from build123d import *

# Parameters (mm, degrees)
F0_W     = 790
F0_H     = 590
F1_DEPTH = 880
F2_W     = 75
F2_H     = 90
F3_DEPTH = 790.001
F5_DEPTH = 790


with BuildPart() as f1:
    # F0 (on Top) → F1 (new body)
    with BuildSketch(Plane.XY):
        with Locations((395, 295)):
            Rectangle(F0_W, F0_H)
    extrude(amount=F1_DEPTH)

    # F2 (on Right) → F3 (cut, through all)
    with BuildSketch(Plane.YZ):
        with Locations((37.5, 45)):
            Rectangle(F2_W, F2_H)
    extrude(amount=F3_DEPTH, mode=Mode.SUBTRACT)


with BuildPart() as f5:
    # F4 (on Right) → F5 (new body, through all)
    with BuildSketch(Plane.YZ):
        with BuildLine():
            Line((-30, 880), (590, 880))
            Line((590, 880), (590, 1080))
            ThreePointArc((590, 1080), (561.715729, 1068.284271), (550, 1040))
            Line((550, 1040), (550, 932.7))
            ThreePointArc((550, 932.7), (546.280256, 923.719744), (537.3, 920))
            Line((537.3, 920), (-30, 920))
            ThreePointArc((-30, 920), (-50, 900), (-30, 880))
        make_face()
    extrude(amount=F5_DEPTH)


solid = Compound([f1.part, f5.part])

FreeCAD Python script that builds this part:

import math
import FreeCAD as App
import Part
import Sketcher
from FreeCAD import Vector
Q = App.Units.Quantity


def add_polygon(sketch, points):
    """Adds a closed chain of lines whose ends are joined by coincident constraints."""
    first, n = sketch.GeometryCount, len(points)
    for a, b in zip(points, points[1:] + points[:1]):
        sketch.addGeometry(Part.LineSegment(App.Vector(*a, 0), App.Vector(*b, 0)), False)
    for i in range(n):
        sketch.addConstraint(Sketcher.Constraint("Coincident", first + i, 2, first + (i + 1) % n, 1))

doc = App.newDocument("Part")
body = doc.addObject("PartDesign::Body", "Body")

# Sketch on XY plane
sketch1 = doc.addObject("Sketcher::SketchObject", "Sketch")
body.addObject(sketch1)
sketch1.AttachmentSupport = (doc.XY_Plane, [""])
sketch1.MapMode = "FlatFace"
add_polygon(sketch1, [(0, 590), (0, 0), (790, 0), (790, 590)])  # lines 0-3
sketch1.addConstraint(Sketcher.Constraint("Vertical", 0))
sketch1.addConstraint(Sketcher.Constraint("Horizontal", 1))
sketch1.addConstraint(Sketcher.Constraint("Vertical", 2))
sketch1.addConstraint(Sketcher.Constraint("Horizontal", 3))
sketch1.addConstraint(Sketcher.Constraint("Coincident", 0, 2, -1, 1))
sketch1.addConstraint(Sketcher.Constraint("DistanceX", 1, 1, 1, 2, Q("790 mm")))
sketch1.addConstraint(Sketcher.Constraint("DistanceY", 0, 2, 0, 1, Q("590 mm")))
pad1 = doc.addObject("PartDesign::Pad", "Pad")
body.addObject(pad1)
pad1.Profile = sketch1
pad1.Length = 880

# Sketch on YZ plane
sketch2 = doc.addObject("Sketcher::SketchObject", "Sketch001")
body.addObject(sketch2)
sketch2.AttachmentSupport = (doc.YZ_Plane, [""])
sketch2.MapMode = "FlatFace"
add_polygon(sketch2, [(0, 90), (0, 0), (75, 0), (75, 90)])  # lines 0-3
sketch2.addConstraint(Sketcher.Constraint("Vertical", 0))
sketch2.addConstraint(Sketcher.Constraint("Horizontal", 1))
sketch2.addConstraint(Sketcher.Constraint("Vertical", 2))
sketch2.addConstraint(Sketcher.Constraint("Horizontal", 3))
sketch2.addConstraint(Sketcher.Constraint("Coincident", 0, 2, -1, 1))
sketch2.addConstraint(Sketcher.Constraint("DistanceX", 1, 1, 1, 2, Q("75 mm")))
sketch2.addConstraint(Sketcher.Constraint("DistanceY", 0, 2, 0, 1, Q("90 mm")))
pocket1 = doc.addObject("PartDesign::Pocket", "Pocket")
body.addObject(pocket1)
pocket1.Profile = sketch2
pocket1.Type = "ThroughAll"
pocket1.Reversed = True
body2 = doc.addObject("PartDesign::Body", "Body001")

# Sketch on YZ plane
sketch3 = doc.addObject("Sketcher::SketchObject", "Sketch002")
body2.addObject(sketch3)
sketch3.AttachmentSupport = (doc.getObject("YZ_Plane001"), [""])
sketch3.MapMode = "FlatFace"
sketch3.addGeometry(Part.LineSegment(Vector(-30, 880, 0), Vector(590, 880, 0)), False)
sketch3.addGeometry(Part.LineSegment(Vector(590, 880, 0), Vector(590, 1080, 0)), False)
sketch3.addGeometry(Part.ArcOfCircle(Part.Circle(Vector(590, 1040, 0), Vector(0, 0, 1), 40), math.radians(90), math.radians(180)), False)
sketch3.addGeometry(Part.LineSegment(Vector(550, 1040, 0), Vector(550, 933, 0)), False)
sketch3.addGeometry(Part.ArcOfCircle(Part.Circle(Vector(537, 933, 0), Vector(0, 0, 1), 13), math.radians(-90), math.radians(0)), False)
sketch3.addGeometry(Part.LineSegment(Vector(537, 920, 0), Vector(-30, 920, 0)), False)
sketch3.addGeometry(Part.ArcOfCircle(Part.Circle(Vector(-30, 900, 0), Vector(0, 0, 1), 20), math.radians(90), math.radians(270)), False)
sketch3.addConstraint(Sketcher.Constraint("Coincident", 0, 2, 1, 1))
sketch3.addConstraint(Sketcher.Constraint("Coincident", 1, 2, 2, 1))
sketch3.addConstraint(Sketcher.Constraint("Tangent", 2, 2, 3, 1))
sketch3.addConstraint(Sketcher.Constraint("Tangent", 3, 2, 4, 2))
sketch3.addConstraint(Sketcher.Constraint("Tangent", 4, 1, 5, 1))
sketch3.addConstraint(Sketcher.Constraint("Tangent", 5, 2, 6, 1))
sketch3.addConstraint(Sketcher.Constraint("Tangent", 6, 2, 0, 1))
sketch3.addConstraint(Sketcher.Constraint("Horizontal", 0))
sketch3.addConstraint(Sketcher.Constraint("Vertical", 1))
sketch3.addConstraint(Sketcher.Constraint("Vertical", 3))
sketch3.addConstraint(Sketcher.Constraint("Horizontal", 5))
sketch3.addConstraint(Sketcher.Constraint("Vertical", 2, 3, 0, 2))
sketch3.addConstraint(Sketcher.Constraint("Radius", 2, Q("40.000001 mm")))
sketch3.addConstraint(Sketcher.Constraint("Radius", 6, Q("20 mm")))
sketch3.addConstraint(Sketcher.Constraint("Radius", 4, Q("12.7 mm")))
sketch3.addConstraint(Sketcher.Constraint("DistanceX", 0, 1, 0, 2, Q("620 mm")))
sketch3.addConstraint(Sketcher.Constraint("DistanceY", 1, 1, 1, 2, Q("200 mm")))
sketch3.addConstraint(Sketcher.Constraint("DistanceX", -1, 1, 2, 3, Q("590.000001 mm")))
sketch3.addConstraint(Sketcher.Constraint("DistanceY", -1, 1, 2, 3, Q("1039.999999 mm")))
pad2 = doc.addObject("PartDesign::Pad", "Pad001")
body2.addObject(pad2)
pad2.Profile = sketch3
pad2.Length = 790

doc.recompute()
